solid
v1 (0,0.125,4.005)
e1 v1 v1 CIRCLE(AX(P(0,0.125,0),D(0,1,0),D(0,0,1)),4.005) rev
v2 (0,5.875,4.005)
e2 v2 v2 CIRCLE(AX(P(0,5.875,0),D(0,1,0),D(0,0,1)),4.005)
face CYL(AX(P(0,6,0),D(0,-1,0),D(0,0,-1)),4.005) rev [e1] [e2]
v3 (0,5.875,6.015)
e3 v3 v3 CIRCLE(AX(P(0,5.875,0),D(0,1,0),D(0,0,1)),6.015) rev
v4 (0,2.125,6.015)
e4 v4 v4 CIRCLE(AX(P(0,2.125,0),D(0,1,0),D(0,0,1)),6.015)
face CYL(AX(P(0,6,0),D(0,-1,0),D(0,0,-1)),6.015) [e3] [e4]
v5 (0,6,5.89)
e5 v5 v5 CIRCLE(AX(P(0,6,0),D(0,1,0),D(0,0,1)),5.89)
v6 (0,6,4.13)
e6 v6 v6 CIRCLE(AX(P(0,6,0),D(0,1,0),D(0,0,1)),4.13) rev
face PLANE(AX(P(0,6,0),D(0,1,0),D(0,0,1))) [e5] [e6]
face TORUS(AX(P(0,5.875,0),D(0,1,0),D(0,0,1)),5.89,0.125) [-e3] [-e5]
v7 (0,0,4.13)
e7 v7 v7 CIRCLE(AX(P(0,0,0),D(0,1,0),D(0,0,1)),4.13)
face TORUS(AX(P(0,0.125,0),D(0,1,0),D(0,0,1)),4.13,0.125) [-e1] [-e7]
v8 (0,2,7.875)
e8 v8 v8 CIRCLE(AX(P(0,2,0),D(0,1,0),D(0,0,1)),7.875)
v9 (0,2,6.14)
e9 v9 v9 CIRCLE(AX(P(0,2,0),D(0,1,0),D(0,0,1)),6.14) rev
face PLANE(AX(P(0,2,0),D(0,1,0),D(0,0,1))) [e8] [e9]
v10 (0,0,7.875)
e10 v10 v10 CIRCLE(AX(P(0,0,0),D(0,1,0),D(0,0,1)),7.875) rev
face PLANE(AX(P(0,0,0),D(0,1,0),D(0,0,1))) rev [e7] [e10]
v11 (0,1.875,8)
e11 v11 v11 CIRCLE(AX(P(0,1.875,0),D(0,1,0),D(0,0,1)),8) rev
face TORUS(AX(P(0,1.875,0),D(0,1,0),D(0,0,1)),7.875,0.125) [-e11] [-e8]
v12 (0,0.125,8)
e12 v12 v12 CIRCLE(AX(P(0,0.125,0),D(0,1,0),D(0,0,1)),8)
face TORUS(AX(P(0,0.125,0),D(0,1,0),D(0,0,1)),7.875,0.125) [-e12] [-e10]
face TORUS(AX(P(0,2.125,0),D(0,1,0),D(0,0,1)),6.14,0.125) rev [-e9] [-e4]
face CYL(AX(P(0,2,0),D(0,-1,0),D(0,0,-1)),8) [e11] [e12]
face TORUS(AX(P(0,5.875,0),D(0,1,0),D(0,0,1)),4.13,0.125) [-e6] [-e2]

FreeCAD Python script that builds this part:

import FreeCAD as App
import Part
import Sketcher

V = App.Vector
Q = App.Units.Quantity


def edges_at(feature, points):
    """Names of the edges that pass closest to the given points."""
    edges = feature.Shape.Edges
    near = lambda p: min(range(len(edges)), key=lambda i: edges[i].distToShape(Part.Vertex(*p))[0])
    return sorted({f"Edge{near(p) + 1}" for p in points})

doc = App.newDocument("Part")
body = doc.addObject("PartDesign::Body", "Body")

sketch1 = doc.addObject("Sketcher::SketchObject", "Sketch")
body.addObject(sketch1)
sketch1.AttachmentSupport = (doc.XZ_Plane, [""])
sketch1.MapMode = "FlatFace"
sketch1.addGeometry([
    Part.Circle(V(0, 0, 0), V(0, 0, 1), 6),
    Part.Circle(V(0, 0, 0), V(0, 0, 1), 4),
], False)
sketch1.addConstraint([
    Sketcher.Constraint("Coincident", 0, 3, -1, 1),
    Sketcher.Constraint("Coincident", 1, 3, -1, 1),
    Sketcher.Constraint("Diameter", 0, Q("12.03 mm")),
    Sketcher.Constraint("Diameter", 1, Q("8.01 mm")),
])
pad1 = doc.addObject("PartDesign::Pad", "Pad")
body.addObject(pad1)
pad1.Profile = sketch1
pad1.Length = 6
pad1.Reversed = True

sketch2 = doc.addObject("Sketcher::SketchObject", "Sketch001")
body.addObject(sketch2)
sketch2.AttachmentSupport = (doc.XZ_Plane, [""])
sketch2.MapMode = "FlatFace"
sketch2.addGeometry([
    Part.Circle(V(0, 0, 0), V(0, 0, 1), 8),
    Part.Circle(V(0, 0, 0), V(0, 0, 1), 6),
], False)
sketch2.addConstraint([
    Sketcher.Constraint("Coincident", 0, 3, -1, 1),
    Sketcher.Constraint("Coincident", 1, 3, -1, 1),
    Sketcher.Constraint("Diameter", 0, Q("16 mm")),
    Sketcher.Constraint("Diameter", 1, Q("12.03 mm")),
])
pad2 = doc.addObject("PartDesign::Pad", "Pad001")
body.addObject(pad2)
pad2.Profile = sketch2
pad2.Length = 2
pad2.Reversed = True
doc.recompute()

fillet = doc.addObject("PartDesign::Fillet", "Fillet")
body.addObject(fillet)
fillet.Base = (pad2, edges_at(pad2, [
    (-8, 0, 0),
    (-6.015, 2, 0),
    (-6.015, 6, 0),
    (-4.005, 0, 0),
    (-4.005, 6, 0),
    (-8, 2, 0),
]))
fillet.Radius = 0.125

doc.recompute()
